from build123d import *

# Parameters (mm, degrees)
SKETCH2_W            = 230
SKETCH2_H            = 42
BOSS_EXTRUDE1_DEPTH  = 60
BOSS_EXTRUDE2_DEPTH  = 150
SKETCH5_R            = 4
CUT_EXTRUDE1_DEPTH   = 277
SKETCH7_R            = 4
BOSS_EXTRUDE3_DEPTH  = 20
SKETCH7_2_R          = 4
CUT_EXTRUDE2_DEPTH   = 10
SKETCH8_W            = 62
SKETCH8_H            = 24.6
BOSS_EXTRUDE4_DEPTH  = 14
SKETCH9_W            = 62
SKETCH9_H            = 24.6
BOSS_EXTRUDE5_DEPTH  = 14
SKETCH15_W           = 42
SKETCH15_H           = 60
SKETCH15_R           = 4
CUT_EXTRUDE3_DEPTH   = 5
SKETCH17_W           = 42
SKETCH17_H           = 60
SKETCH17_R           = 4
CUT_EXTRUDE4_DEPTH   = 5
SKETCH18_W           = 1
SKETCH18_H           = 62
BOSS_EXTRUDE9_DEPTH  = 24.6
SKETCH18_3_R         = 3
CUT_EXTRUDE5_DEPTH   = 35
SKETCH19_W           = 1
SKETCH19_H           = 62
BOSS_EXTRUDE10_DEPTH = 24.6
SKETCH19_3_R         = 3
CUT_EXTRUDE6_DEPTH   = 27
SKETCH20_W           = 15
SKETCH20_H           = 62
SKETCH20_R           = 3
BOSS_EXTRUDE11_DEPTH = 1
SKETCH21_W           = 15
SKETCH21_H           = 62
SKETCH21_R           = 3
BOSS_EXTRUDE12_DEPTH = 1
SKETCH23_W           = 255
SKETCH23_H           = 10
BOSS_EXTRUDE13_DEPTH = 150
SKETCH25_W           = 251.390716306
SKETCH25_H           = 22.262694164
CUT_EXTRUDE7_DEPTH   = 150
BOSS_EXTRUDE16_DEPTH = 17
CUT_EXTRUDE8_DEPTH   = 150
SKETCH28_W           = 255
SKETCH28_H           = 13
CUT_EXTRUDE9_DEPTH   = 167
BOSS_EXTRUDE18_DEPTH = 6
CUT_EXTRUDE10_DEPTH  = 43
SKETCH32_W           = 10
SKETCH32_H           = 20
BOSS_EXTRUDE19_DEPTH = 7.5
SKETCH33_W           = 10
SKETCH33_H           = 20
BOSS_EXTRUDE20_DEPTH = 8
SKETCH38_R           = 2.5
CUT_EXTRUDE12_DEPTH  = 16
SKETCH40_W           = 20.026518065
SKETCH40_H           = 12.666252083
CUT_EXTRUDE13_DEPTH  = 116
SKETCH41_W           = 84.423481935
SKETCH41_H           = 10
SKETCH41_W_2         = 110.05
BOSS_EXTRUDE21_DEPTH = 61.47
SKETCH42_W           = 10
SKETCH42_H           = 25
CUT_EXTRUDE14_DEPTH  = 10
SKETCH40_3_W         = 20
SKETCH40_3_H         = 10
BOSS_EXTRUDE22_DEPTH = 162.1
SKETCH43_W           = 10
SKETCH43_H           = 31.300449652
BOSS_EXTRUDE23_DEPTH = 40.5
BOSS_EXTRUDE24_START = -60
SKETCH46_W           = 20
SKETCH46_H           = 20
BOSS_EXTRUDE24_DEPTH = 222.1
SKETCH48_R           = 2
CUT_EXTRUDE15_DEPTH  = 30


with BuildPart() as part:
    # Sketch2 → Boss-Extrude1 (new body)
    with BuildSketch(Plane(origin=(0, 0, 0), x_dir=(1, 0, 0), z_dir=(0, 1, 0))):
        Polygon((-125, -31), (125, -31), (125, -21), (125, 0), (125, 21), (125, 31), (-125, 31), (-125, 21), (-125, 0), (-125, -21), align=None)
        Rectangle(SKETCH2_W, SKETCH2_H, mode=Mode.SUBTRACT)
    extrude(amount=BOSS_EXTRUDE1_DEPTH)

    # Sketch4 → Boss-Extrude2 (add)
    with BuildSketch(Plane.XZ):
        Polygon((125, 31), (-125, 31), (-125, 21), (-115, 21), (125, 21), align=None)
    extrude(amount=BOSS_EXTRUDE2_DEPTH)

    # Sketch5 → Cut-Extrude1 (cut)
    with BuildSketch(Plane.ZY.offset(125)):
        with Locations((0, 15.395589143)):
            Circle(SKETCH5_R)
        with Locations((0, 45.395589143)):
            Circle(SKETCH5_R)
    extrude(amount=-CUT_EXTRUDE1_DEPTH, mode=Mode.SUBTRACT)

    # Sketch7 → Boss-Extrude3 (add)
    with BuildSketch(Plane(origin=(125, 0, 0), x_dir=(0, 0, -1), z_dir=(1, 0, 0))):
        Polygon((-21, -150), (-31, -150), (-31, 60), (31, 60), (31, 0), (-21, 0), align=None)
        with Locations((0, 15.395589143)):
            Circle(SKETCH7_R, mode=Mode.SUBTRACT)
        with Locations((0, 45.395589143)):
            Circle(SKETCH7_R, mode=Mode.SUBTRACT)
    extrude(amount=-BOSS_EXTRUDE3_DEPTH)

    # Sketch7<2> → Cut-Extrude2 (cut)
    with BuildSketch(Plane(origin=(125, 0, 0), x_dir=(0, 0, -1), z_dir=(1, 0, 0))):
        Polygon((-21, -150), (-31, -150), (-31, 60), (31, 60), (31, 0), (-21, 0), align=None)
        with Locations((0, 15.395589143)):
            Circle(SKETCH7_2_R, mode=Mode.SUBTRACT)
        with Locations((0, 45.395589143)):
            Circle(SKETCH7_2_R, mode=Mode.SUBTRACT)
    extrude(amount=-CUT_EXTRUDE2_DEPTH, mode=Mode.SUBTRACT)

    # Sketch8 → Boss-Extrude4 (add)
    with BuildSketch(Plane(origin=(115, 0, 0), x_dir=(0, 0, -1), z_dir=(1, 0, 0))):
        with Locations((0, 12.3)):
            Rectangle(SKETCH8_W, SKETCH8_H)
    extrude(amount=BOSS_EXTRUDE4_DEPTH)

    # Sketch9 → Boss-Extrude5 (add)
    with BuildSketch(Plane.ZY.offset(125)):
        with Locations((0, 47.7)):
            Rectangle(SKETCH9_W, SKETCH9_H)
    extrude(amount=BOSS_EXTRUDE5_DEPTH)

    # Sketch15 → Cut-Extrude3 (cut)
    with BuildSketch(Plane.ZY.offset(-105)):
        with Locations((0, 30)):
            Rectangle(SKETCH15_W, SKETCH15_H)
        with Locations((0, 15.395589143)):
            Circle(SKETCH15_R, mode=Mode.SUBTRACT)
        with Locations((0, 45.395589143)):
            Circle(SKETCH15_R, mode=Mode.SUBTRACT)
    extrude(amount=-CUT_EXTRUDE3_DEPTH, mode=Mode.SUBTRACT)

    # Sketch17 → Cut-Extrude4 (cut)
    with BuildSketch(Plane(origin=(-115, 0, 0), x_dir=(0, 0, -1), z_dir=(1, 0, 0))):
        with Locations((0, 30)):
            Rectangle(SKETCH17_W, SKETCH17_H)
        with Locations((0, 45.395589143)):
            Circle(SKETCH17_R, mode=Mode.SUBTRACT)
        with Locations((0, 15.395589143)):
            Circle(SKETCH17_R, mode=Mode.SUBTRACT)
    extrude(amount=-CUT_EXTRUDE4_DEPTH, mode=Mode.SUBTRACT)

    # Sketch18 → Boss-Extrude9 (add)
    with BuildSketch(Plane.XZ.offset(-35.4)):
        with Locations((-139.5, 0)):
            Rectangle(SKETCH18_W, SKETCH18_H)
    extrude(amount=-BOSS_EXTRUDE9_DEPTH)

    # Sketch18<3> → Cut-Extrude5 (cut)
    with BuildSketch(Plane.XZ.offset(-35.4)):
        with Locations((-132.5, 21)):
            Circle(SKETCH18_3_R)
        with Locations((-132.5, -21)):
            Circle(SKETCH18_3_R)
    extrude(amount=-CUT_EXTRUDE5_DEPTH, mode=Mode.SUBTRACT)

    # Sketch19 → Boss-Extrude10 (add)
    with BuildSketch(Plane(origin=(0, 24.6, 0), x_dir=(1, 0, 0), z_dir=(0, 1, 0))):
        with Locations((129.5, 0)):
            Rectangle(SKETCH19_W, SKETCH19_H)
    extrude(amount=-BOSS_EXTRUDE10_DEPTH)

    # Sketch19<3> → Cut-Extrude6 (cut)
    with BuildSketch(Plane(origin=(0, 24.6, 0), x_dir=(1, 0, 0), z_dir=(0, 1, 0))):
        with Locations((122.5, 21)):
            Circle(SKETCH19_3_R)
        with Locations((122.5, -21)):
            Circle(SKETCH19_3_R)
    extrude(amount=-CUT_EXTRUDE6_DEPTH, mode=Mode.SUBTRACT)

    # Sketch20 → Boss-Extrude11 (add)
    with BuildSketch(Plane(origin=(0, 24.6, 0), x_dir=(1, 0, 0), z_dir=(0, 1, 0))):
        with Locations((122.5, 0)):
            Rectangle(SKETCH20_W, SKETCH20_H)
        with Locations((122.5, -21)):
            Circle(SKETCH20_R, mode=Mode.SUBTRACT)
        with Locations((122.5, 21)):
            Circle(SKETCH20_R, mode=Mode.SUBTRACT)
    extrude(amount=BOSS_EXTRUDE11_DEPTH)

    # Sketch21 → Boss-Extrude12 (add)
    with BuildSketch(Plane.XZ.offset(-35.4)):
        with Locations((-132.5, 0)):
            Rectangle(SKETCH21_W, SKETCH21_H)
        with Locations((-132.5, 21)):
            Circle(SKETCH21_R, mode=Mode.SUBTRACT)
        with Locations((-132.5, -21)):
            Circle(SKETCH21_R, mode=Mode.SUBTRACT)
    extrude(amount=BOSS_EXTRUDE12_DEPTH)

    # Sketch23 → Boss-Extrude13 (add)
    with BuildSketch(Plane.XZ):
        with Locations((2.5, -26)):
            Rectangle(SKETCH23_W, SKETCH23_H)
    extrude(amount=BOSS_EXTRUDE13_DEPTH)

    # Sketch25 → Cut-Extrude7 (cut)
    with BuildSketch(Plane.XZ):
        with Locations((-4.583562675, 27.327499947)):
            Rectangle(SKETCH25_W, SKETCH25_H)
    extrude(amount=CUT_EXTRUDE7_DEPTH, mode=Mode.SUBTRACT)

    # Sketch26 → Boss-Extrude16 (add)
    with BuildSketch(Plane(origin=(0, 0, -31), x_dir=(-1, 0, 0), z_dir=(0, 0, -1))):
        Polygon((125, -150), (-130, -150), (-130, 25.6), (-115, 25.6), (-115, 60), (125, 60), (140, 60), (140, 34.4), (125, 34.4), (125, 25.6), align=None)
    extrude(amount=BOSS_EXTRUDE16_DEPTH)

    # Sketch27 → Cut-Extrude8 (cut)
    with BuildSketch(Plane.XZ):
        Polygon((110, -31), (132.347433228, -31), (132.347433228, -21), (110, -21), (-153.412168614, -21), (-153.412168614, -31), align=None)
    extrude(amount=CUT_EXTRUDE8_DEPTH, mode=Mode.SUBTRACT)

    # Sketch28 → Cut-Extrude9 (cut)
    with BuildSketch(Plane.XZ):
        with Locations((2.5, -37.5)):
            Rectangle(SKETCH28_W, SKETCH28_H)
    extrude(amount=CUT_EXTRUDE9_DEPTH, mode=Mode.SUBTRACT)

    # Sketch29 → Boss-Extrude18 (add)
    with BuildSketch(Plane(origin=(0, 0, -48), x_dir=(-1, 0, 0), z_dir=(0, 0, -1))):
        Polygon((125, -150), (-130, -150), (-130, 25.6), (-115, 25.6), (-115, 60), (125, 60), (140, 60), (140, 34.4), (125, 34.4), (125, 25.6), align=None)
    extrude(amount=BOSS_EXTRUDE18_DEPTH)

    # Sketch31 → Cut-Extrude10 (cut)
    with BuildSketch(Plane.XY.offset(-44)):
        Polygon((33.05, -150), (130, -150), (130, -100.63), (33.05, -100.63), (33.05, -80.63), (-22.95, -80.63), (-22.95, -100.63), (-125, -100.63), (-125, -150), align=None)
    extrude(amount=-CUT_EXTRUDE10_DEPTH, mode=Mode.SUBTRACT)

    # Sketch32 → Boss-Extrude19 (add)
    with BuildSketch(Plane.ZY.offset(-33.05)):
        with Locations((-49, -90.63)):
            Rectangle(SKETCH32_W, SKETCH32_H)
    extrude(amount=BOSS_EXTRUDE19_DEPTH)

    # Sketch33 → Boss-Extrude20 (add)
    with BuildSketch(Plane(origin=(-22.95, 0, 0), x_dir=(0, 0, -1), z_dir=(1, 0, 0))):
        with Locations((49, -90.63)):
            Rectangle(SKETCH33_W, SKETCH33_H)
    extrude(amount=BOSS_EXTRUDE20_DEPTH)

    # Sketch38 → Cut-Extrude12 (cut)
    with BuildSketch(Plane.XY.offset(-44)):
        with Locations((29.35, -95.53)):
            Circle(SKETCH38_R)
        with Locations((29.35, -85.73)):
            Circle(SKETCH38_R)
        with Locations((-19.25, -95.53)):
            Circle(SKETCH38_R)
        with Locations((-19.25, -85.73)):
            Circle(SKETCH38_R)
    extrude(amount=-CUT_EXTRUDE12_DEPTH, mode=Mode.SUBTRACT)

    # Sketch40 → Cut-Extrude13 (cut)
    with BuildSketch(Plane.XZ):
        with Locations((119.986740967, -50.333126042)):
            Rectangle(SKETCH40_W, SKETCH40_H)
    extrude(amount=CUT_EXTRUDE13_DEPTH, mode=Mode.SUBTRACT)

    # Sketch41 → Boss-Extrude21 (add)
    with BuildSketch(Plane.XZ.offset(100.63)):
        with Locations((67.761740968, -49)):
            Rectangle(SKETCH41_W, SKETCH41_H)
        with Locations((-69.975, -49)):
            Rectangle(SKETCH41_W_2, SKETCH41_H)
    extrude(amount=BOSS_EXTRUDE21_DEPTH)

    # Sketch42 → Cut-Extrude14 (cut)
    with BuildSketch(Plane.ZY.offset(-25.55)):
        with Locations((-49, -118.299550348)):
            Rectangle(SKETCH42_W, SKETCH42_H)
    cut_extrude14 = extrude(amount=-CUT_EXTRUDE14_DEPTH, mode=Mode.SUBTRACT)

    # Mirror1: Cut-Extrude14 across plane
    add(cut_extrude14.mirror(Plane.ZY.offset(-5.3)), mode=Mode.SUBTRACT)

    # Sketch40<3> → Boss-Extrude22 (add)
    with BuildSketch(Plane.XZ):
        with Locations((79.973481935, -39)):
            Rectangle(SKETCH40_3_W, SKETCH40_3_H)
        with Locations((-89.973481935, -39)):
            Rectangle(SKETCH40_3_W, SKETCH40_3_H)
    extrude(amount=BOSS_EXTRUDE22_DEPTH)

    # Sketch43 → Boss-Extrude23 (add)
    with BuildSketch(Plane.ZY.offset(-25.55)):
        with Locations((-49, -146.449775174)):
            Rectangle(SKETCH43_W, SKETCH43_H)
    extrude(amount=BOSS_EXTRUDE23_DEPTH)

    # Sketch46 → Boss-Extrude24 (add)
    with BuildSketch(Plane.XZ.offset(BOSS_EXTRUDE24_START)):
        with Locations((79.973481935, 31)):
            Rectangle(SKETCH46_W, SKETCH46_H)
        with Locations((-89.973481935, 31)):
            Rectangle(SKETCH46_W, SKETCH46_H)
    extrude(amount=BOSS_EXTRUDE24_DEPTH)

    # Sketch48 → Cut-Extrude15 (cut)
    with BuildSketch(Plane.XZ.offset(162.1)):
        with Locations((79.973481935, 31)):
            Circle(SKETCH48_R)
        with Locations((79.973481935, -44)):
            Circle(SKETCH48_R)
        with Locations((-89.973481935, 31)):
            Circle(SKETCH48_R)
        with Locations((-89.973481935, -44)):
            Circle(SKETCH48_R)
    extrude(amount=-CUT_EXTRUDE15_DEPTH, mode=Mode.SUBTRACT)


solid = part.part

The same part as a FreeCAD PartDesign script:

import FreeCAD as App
import Part
import Sketcher


def add_polygon(sketch, points):
    """Adds a closed chain of lines whose ends are joined by coincident constraints."""
    first, n = sketch.GeometryCount, len(points)
    for a, b in zip(points, points[1:] + points[:1]):
        sketch.addGeometry(Part.LineSegment(App.Vector(*a, 0), App.Vector(*b, 0)), False)
    for i in range(n):
        sketch.addConstraint(Sketcher.Constraint("Coincident", first + i, 2, first + (i + 1) % n, 1))

doc = App.newDocument("Part")
body = doc.addObject("PartDesign::Body", "Body")

# Sketch on XZ plane
sketch1 = body.newObject("Sketcher::SketchObject", "Sketch")
sketch1.AttachmentSupport = (doc.getObject("XZ_Plane"), [""])
sketch1.MapMode = "FlatFace"
add_polygon(sketch1, [(-125, 31), (125, 31), (125, -31), (-125, -31)])  # lines 0-3
add_polygon(sketch1, [(115, 21), (-115, 21), (-115, -21), (115, -21)])  # lines 4-7
sketch1.addConstraint([
    Sketcher.Constraint("Horizontal", 0),
    Sketcher.Constraint("Vertical", 1),
    Sketcher.Constraint("Horizontal", 2),
    Sketcher.Constraint("Vertical", 3),
    Sketcher.Constraint("Horizontal", 4),
    Sketcher.Constraint("Vertical", 5),
    Sketcher.Constraint("Horizontal", 6),
    Sketcher.Constraint("Vertical", 7),
    Sketcher.Constraint("Symmetric", 0, 2, 2, 2, -1, 1),
    Sketcher.Constraint("Symmetric", 4, 2, 6, 2, -1, 1),
    Sketcher.Constraint("DistanceX", 0, 1, 0, 2, 250.0),
    Sketcher.Constraint("DistanceX", 4, 2, 4, 1, 230.0),
    Sketcher.Constraint("DistanceY", 1, 2, 1, 1, 62.0),
    Sketcher.Constraint("DistanceY", 5, 2, 5, 1, 42.0),
])
pad1 = body.newObject("PartDesign::Pad", "Pad")
pad1.Profile = sketch1
pad1.Length = 60
pad1.Reversed = True

# Sketch on XZ plane
sketch2 = body.newObject("Sketcher::SketchObject", "Sketch001")
sketch2.AttachmentSupport = (doc.getObject("XZ_Plane"), [""])
sketch2.MapMode = "FlatFace"
add_polygon(sketch2, [(125, 31), (-125, 31), (-125, 21), (125, 21)])  # lines 0-3
sketch2.addConstraint([
    Sketcher.Constraint("Horizontal", 0),
    Sketcher.Constraint("Vertical", 1),
    Sketcher.Constraint("Horizontal", 2),
    Sketcher.Constraint("Vertical", 3),
    Sketcher.Constraint("DistanceX", 0, 2, 0, 1, 250.0),
    Sketcher.Constraint("DistanceY", 1, 2, 1, 1, 10.0),
    Sketcher.Constraint("DistanceX", 0, 2, -1, 1, 125.0),
    Sketcher.Constraint("DistanceY", -1, 1, 0, 2, 31.0),
])
pad2 = body.newObject("PartDesign::Pad", "Pad001")
pad2.Profile = sketch2
pad2.Length = 150

# Sketch on YZ plane
sketch3 = body.newObject("Sketcher::SketchObject", "Sketch002")
sketch3.AttachmentSupport = (doc.getObject("YZ_Plane"), [""])
sketch3.MapMode = "FlatFace"
sketch3.AttachmentOffset = App.Placement(App.Vector(0, 0, -125), App.Rotation())
sketch3.addGeometry([
    Part.Circle(App.Vector(15.4, 0, 0), App.Vector(0, 0, 1), 4),
    Part.Circle(App.Vector(45.4, 0, 0), App.Vector(0, 0, 1), 4),
], False)
sketch3.addConstraint([
    Sketcher.Constraint("Equal", 0, 1),
    Sketcher.Constraint("PointOnObject", 0, 3, -1),
    Sketcher.Constraint("PointOnObject", 1, 3, -1),
    Sketcher.Constraint("Diameter", 0, 8.0),
    Sketcher.Constraint("DistanceX", 0, 3, 1, 3, 30.0),
    Sketcher.Constraint("DistanceX", -1, 1, 0, 3, 15.395589),
])
pocket1 = body.newObject("PartDesign::Pocket", "Pocket")
pocket1.Profile = sketch3
pocket1.Length = 277
pocket1.Reversed = True

# Sketch on YZ plane
sketch4 = body.newObject("Sketcher::SketchObject", "Sketch003")
sketch4.AttachmentSupport = (doc.getObject("YZ_Plane"), [""])
sketch4.MapMode = "FlatFace"
sketch4.AttachmentOffset = App.Placement(App.Vector(0, 0, 125), App.Rotation())
add_polygon(sketch4, [(-150, 31), (-150, 21), (0, 21), (0, -31), (60, -31), (60, 31)])  # lines 0-5
sketch4.addGeometry(Part.Circle(App.Vector(15.4, 0, 0), App.Vector(0, 0, 1), 4), False)  # 6
sketch4.addGeometry(Part.Circle(App.Vector(45.4, 0, 0), App.Vector(0, 0, 1), 4), False)  # 7
sketch4.addConstraint([
    Sketcher.Constraint("Vertical", 0),
    Sketcher.Constraint("Horizontal", 1),
    Sketcher.Constraint("Vertical", 2),
    Sketcher.Constraint("Horizontal", 3),
    Sketcher.Constraint("Vertical", 4),
    Sketcher.Constraint("Horizontal", 5),
    Sketcher.Constraint("Equal", 6, 7),
    Sketcher.Constraint("PointOnObject", 6, 3, -1),
    Sketcher.Constraint("PointOnObject", 7, 3, -1),
    Sketcher.Constraint("PointOnObject", 1, 2, -2),
    Sketcher.Constraint("Diameter", 6, 8.0),
    Sketcher.Constraint("DistanceX", 1, 1, 1, 2, 150.0),
    Sketcher.Constraint("DistanceX", 3, 1, 3, 2, 60.0),
    Sketcher.Constraint("DistanceY", 0, 2, 0, 1, 10.0),
    Sketcher.Constraint("DistanceY", 2, 2, 2, 1, 52.0),
    Sketcher.Constraint("DistanceY", -1, 1, 0, 2, 21.0),
    Sketcher.Constraint("DistanceX", 6, 3, 7, 3, 30.0),
    Sketcher.Constraint("DistanceX", -1, 1, 6, 3, 15.395589),
])
pad3 = body.newObject("PartDesign::Pad", "Pad002")
pad3.Profile = sketch4
pad3.Length = 20
pad3.Reversed = True

# Sketch on YZ plane
sketch5 = body.newObject("Sketcher::SketchObject", "Sketch004")
sketch5.AttachmentSupport = (doc.getObject("YZ_Plane"), [""])
sketch5.MapMode = "FlatFace"
sketch5.AttachmentOffset = App.Placement(App.Vector(0, 0, 125), App.Rotation())
add_polygon(sketch5, [(-150, 31), (-150, 21), (0, 21), (0, -31), (60, -31), (60, 31)])  # lines 0-5
sketch5.addGeometry(Part.Circle(App.Vector(15.4, 0, 0), App.Vector(0, 0, 1), 4), False)  # 6
sketch5.addGeometry(Part.Circle(App.Vector(45.4, 0, 0), App.Vector(0, 0, 1), 4), False)  # 7
sketch5.addConstraint([
    Sketcher.Constraint("Vertical", 0),
    Sketcher.Constraint("Horizontal", 1),
    Sketcher.Constraint("Vertical", 2),
    Sketcher.Constraint("Horizontal", 3),
    Sketcher.Constraint("Vertical", 4),
    Sketcher.Constraint("Horizontal", 5),
    Sketcher.Constraint("Equal", 6, 7),
    Sketcher.Constraint("PointOnObject", 6, 3, -1),
    Sketcher.Constraint("PointOnObject", 7, 3, -1),
    Sketcher.Constraint("PointOnObject", 1, 2, -2),
    Sketcher.Constraint("Diameter", 6, 8.0),
    Sketcher.Constraint("DistanceX", 1, 1, 1, 2, 150.0),
    Sketcher.Constraint("DistanceX", 3, 1, 3, 2, 60.0),
    Sketcher.Constraint("DistanceY", 0, 2, 0, 1, 10.0),
    Sketcher.Constraint("DistanceY", 2, 2, 2, 1, 52.0),
    Sketcher.Constraint("DistanceY", -1, 1, 0, 2, 21.0),
    Sketcher.Constraint("DistanceX", 6, 3, 7, 3, 30.0),
    Sketcher.Constraint("DistanceX", -1, 1, 6, 3, 15.395589),
])
pocket2 = body.newObject("PartDesign::Pocket", "Pocket001")
pocket2.Profile = sketch5
pocket2.Length = 10

# Sketch on YZ plane
sketch6 = body.newObject("Sketcher::SketchObject", "Sketch005")
sketch6.AttachmentSupport = (doc.getObject("YZ_Plane"), [""])
sketch6.MapMode = "FlatFace"
sketch6.AttachmentOffset = App.Placement(App.Vector(0, 0, 115), App.Rotation())
add_polygon(sketch6, [(25, 31), (0, 31), (0, -31), (25, -31)])  # lines 0-3
sketch6.addConstraint([
    Sketcher.Constraint("Horizontal", 0),
    Sketcher.Constraint("Vertical", 1),
    Sketcher.Constraint("Horizontal", 2),
    Sketcher.Constraint("Vertical", 3),
    Sketcher.Constraint("Symmetric", 0, 2, 1, 2, -1, 1),
    Sketcher.Constraint("DistanceY", 1, 2, 1, 1, 62.0),
    Sketcher.Constraint("DistanceX", 0, 2, 0, 1, 24.6),
])
pad4 = body.newObject("PartDesign::Pad", "Pad003")
pad4.Profile = sketch6
pad4.Length = 14

# Sketch on YZ plane
sketch7 = body.newObject("Sketcher::SketchObject", "Sketch006")
sketch7.AttachmentSupport = (doc.getObject("YZ_Plane"), [""])
sketch7.MapMode = "FlatFace"
sketch7.AttachmentOffset = App.Placement(App.Vector(0, 0, -125), App.Rotation())
add_polygon(sketch7, [(60, -31), (35, -31), (35, 31), (60, 31)])  # lines 0-3
sketch7.addConstraint([
    Sketcher.Constraint("Horizontal", 0),
    Sketcher.Constraint("Vertical", 1),
    Sketcher.Constraint("Horizontal", 2),
    Sketcher.Constraint("Vertical", 3),
    Sketcher.Constraint("DistanceY", 1, 1, 1, 2, 62.0),
    Sketcher.Constraint("DistanceX", 0, 2, 0, 1, 24.6),
    Sketcher.Constraint("DistanceY", 0, 2, -1, 1, 31.0),
    Sketcher.Constraint("DistanceX", -1, 1, 2, 2, 60.0),
])
pad5 = body.newObject("PartDesign::Pad", "Pad004")
pad5.Profile = sketch7
pad5.Length = 14
pad5.Reversed = True

# Sketch on YZ plane
sketch8 = body.newObject("Sketcher::SketchObject", "Sketch007")
sketch8.AttachmentSupport = (doc.getObject("YZ_Plane"), [""])
sketch8.MapMode = "FlatFace"
sketch8.AttachmentOffset = App.Placement(App.Vector(0, 0, 105), App.Rotation())
add_polygon(sketch8, [(60, -21), (0, -21), (0, 21), (60, 21)])  # lines 0-3
sketch8.addGeometry(Part.Circle(App.Vector(15.4, 0, 0), App.Vector(0, 0, 1), 4), False)  # 4
sketch8.addGeometry(Part.Circle(App.Vector(45.4, 0, 0), App.Vector(0, 0, 1), 4), False)  # 5
sketch8.addConstraint([
    Sketcher.Constraint("Horizontal", 0),
    Sketcher.Constraint("Vertical", 1),
    Sketcher.Constraint("Horizontal", 2),
    Sketcher.Constraint("Vertical", 3),
    Sketcher.Constraint("Equal", 4, 5),
    Sketcher.Constraint("Symmetric", 0, 2, 1, 2, -1, 1),
    Sketcher.Constraint("PointOnObject", 4, 3, -1),
    Sketcher.Constraint("PointOnObject", 5, 3, -1),
    Sketcher.Constraint("Diameter", 4, 8.0),
    Sketcher.Constraint("DistanceX", 0, 2, 0, 1, 60.0),
    Sketcher.Constraint("DistanceY", 1, 1, 1, 2, 42.0),
    Sketcher.Constraint("DistanceX", 4, 3, 5, 3, 30.0),
    Sketcher.Constraint("DistanceX", -1, 1, 4, 3, 15.395589),
])
pocket3 = body.newObject("PartDesign::Pocket", "Pocket002")
pocket3.Profile = sketch8
pocket3.Length = 5
pocket3.Reversed = True

# Sketch on YZ plane
sketch9 = body.newObject("Sketcher::SketchObject", "Sketch008")
sketch9.AttachmentSupport = (doc.getObject("YZ_Plane"), [""])
sketch9.MapMode = "FlatFace"
sketch9.AttachmentOffset = App.Placement(App.Vector(0, 0, -115), App.Rotation())
add_polygon(sketch9, [(60, 21), (0, 21), (0, -21), (60, -21)])  # lines 0-3
sketch9.addGeometry(Part.Circle(App.Vector(15.4, 0, 0), App.Vector(0, 0, 1), 4), False)  # 4
sketch9.addGeometry(Part.Circle(App.Vector(45.4, 0, 0), App.Vector(0, 0, 1), 4), False)  # 5
sketch9.addConstraint([
    Sketcher.Constraint("Horizontal", 0),
    Sketcher.Constraint("Vertical", 1),
    Sketcher.Constraint("Horizontal", 2),
    Sketcher.Constraint("Vertical", 3),
    Sketcher.Constraint("Equal", 4, 5),
    Sketcher.Constraint("Symmetric", 0, 2, 1, 2, -1, 1),
    Sketcher.Constraint("PointOnObject", 4, 3, -1),
    Sketcher.Constraint("PointOnObject", 5, 3, -1),
    Sketcher.Constraint("Diameter", 4, 8.0),
    Sketcher.Constraint("DistanceX", 0, 2, 0, 1, 60.0),
    Sketcher.Constraint("DistanceY", 1, 2, 1, 1, 42.0),
    Sketcher.Constraint("DistanceX", 4, 3, 5, 3, 30.0),
    Sketcher.Constraint("DistanceX", -1, 1, 4, 3, 15.395589),
])
pocket4 = body.newObject("PartDesign::Pocket", "Pocket003")
pocket4.Profile = sketch9
pocket4.Length = 5

# Sketch on XZ plane
sketch10 = body.newObject("Sketcher::SketchObject", "Sketch009")
sketch10.AttachmentSupport = (doc.getObject("XZ_Plane"), [""])
sketch10.MapMode = "FlatFace"
sketch10.AttachmentOffset = App.Placement(App.Vector(0, 0, -35.4), App.Rotation())
add_polygon(sketch10, [(-140, 31), (-140, -31), (-139, -31), (-139, 31)])  # lines 0-3
sketch10.addConstraint([
    Sketcher.Constraint("Vertical", 0),
    Sketcher.Constraint("Horizontal", 1),
    Sketcher.Constraint("Vertical", 2),
    Sketcher.Constraint("Horizontal", 3),
    Sketcher.Constraint("DistanceX", 1, 1, 1, 2, 1.0),
    Sketcher.Constraint("DistanceY", 0, 2, 0, 1, 62.0),
    Sketcher.Constraint("DistanceX", 0, 2, -1, 1, 140.0),
    Sketcher.Constraint("DistanceY", 0, 2, -1, 1, 31.0),
])
pad6 = body.newObject("PartDesign::Pad", "Pad005")
pad6.Profile = sketch10
pad6.Length = 24.6
pad6.Reversed = True

# Sketch on XZ plane
sketch11 = body.newObject("Sketcher::SketchObject", "Sketch010")
sketch11.AttachmentSupport = (doc.getObject("XZ_Plane"), [""])
sketch11.MapMode = "FlatFace"
sketch11.AttachmentOffset = App.Placement(App.Vector(0, 0, -35.4), App.Rotation())
sketch11.addGeometry([
    Part.Circle(App.Vector(-132.5, 21, 0), App.Vector(0, 0, 1), 3),
    Part.Circle(App.Vector(-132.5, -21, 0), App.Vector(0, 0, 1), 3),
], False)
sketch11.addConstraint([
    Sketcher.Constraint("Equal", 0, 1),
    Sketcher.Constraint("Symmetric", 0, 3, 1, 3, -1),
    Sketcher.Constraint("Diameter", 0, 6.0),
    Sketcher.Constraint("DistanceY", -1, 1, 0, 3, 21.0),
    Sketcher.Constraint("DistanceX", 0, 3, -1, 1, 132.5),
])
pocket5 = body.newObject("PartDesign::Pocket", "Pocket004")
pocket5.Profile = sketch11
pocket5.Length = 35

# Sketch on XZ plane
sketch12 = body.newObject("Sketcher::SketchObject", "Sketch011")
sketch12.AttachmentSupport = (doc.getObject("XZ_Plane"), [""])
sketch12.MapMode = "FlatFace"
sketch12.AttachmentOffset = App.Placement(App.Vector(0, 0, -24.6), App.Rotation())
add_polygon(sketch12, [(129, -31), (129, 31), (130, 31), (130, -31)])  # lines 0-3
sketch12.addConstraint([
    Sketcher.Constraint("Vertical", 0),
    Sketcher.Constraint("Horizontal", 1),
    Sketcher.Constraint("Vertical", 2),
    Sketcher.Constraint("Horizontal", 3),
    Sketcher.Constraint("DistanceX", 1, 1, 1, 2, 1.0),
    Sketcher.Constraint("DistanceY", 0, 1, 0, 2, 62.0),
    Sketcher.Constraint("DistanceX", -1, 1, 0, 2, 129.0),
    Sketcher.Constraint("DistanceY", -1, 1, 0, 2, 31.0),
])
pad7 = body.newObject("PartDesign::Pad", "Pad006")
pad7.Profile = sketch12
pad7.Length = 24.6

# Sketch on XZ plane
sketch13 = body.newObject("Sketcher::SketchObject", "Sketch012")
sketch13.AttachmentSupport = (doc.getObject("XZ_Plane"), [""])
sketch13.MapMode = "FlatFace"
sketch13.AttachmentOffset = App.Placement(App.Vector(0, 0, -24.6), App.Rotation())
sketch13.addGeometry([
    Part.Circle(App.Vector(122.5, -21, 0), App.Vector(0, 0, 1), 3),
    Part.Circle(App.Vector(122.5, 21, 0), App.Vector(0, 0, 1), 3),
], False)
sketch13.addConstraint([
    Sketcher.Constraint("Equal", 0, 1),
    Sketcher.Constraint("Symmetric", 0, 3, 1, 3, -1),
    Sketcher.Constraint("Diameter", 0, 6.0),
    Sketcher.Constraint("DistanceY", 0, 3, -1, 1, 21.0),
    Sketcher.Constraint("DistanceX", -1, 1, 0, 3, 122.5),
])
pocket6 = body.newObject("PartDesign::Pocket", "Pocket005")
pocket6.Profile = sketch13
pocket6.Length = 27
pocket6.Reversed = True

# Sketch on XZ plane
sketch14 = body.newObject("Sketcher::SketchObject", "Sketch013")
sketch14.AttachmentSupport = (doc.getObject("XZ_Plane"), [""])
sketch14.MapMode = "FlatFace"
sketch14.AttachmentOffset = App.Placement(App.Vector(0, 0, -24.6), App.Rotation())
add_polygon(sketch14, [(115, -31), (115, 31), (130, 31), (130, -31)])  # lines 0-3
sketch14.addGeometry(Part.Circle(App.Vector(122.5, 21, 0), App.Vector(0, 0, 1), 3), False)  # 4
sketch14.addGeometry(Part.Circle(App.Vector(122.5, -21, 0), App.Vector(0, 0, 1), 3), False)  # 5
sketch14.addConstraint([
    Sketcher.Constraint("Vertical", 0),
    Sketcher.Constraint("Horizontal", 1),
    Sketcher.Constraint("Vertical", 2),
    Sketcher.Constraint("Horizontal", 3),
    Sketcher.Constraint("Equal", 4, 5),
    Sketcher.Constraint("Symmetric", 4, 3, 5, 3, -1),
    Sketcher.Constraint("Diameter", 4, 6.0),
    Sketcher.Constraint("DistanceX", 1, 1, 1, 2, 15.0),
    Sketcher.Constraint("DistanceY", 0, 1, 0, 2, 62.0),
    Sketcher.Constraint("DistanceY", -1, 1, 4, 3, 21.0),
    Sketcher.Constraint("DistanceX", -1, 1, 0, 2, 115.0),
    Sketcher.Constraint("DistanceY", -1, 1, 0, 2, 31.0),
    Sketcher.Constraint("DistanceX", -1, 1, 4, 3, 122.5),
])
pad8 = body.newObject("PartDesign::Pad", "Pad007")
pad8.Profile = sketch14
pad8.Length = 1
pad8.Reversed = True

# Sketch on XZ plane
sketch15 = body.newObject("Sketcher::SketchObject", "Sketch014")
sketch15.AttachmentSupport = (doc.getObject("XZ_Plane"), [""])
sketch15.MapMode = "FlatFace"
sketch15.AttachmentOffset = App.Placement(App.Vector(0, 0, -35.4), App.Rotation())
add_polygon(sketch15, [(-140, 31), (-140, -31), (-125, -31), (-125, 31)])  # lines 0-3
sketch15.addGeometry(Part.Circle(App.Vector(-132.5, -21, 0), App.Vector(0, 0, 1), 3), False)  # 4
sketch15.addGeometry(Part.Circle(App.Vector(-132.5, 21, 0), App.Vector(0, 0, 1), 3), False)  # 5
sketch15.addConstraint([
    Sketcher.Constraint("Vertical", 0),
    Sketcher.Constraint("Horizontal", 1),
    Sketcher.Constraint("Vertical", 2),
    Sketcher.Constraint("Horizontal", 3),
    Sketcher.Constraint("Equal", 4, 5),
    Sketcher.Constraint("Symmetric", 4, 3, 5, 3, -1),
    Sketcher.Constraint("Diameter", 4, 6.0),
    Sketcher.Constraint("DistanceX", 1, 1, 1, 2, 15.0),
    Sketcher.Constraint("DistanceY", 0, 2, 0, 1, 62.0),
    Sketcher.Constraint("DistanceY", 4, 3, -1, 1, 21.0),
    Sketcher.Constraint("DistanceX", 0, 2, -1, 1, 140.0),
    Sketcher.Constraint("DistanceY", 0, 2, -1, 1, 31.0),
    Sketcher.Constraint("DistanceX", 4, 3, -1, 1, 132.5),
])
pad9 = body.newObject("PartDesign::Pad", "Pad008")
pad9.Profile = sketch15
pad9.Length = 1

# Sketch on XZ plane
sketch16 = body.newObject("Sketcher::SketchObject", "Sketch015")
sketch16.AttachmentSupport = (doc.getObject("XZ_Plane"), [""])
sketch16.MapMode = "FlatFace"
add_polygon(sketch16, [(-125, -21), (-125, -31), (130, -31), (130, -21)])  # lines 0-3
sketch16.addConstraint([
    Sketcher.Constraint("Vertical", 0),
    Sketcher.Constraint("Horizontal", 1),
    Sketcher.Constraint("Vertical", 2),
    Sketcher.Constraint("Horizontal", 3),
    Sketcher.Constraint("DistanceX", 1, 1, 1, 2, 255.0),
    Sketcher.Constraint("DistanceY", 0, 2, 0, 1, 10.0),
    Sketcher.Constraint("DistanceX", 0, 2, -1, 1, 125.0),
    Sketcher.Constraint("DistanceY", 0, 2, -1, 1, 31.0),
])
pad10 = body.newObject("PartDesign::Pad", "Pad009")
pad10.Profile = sketch16
pad10.Length = 150

# Sketch on XZ plane
sketch17 = body.newObject("Sketcher::SketchObject", "Sketch016")
sketch17.AttachmentSupport = (doc.getObject("XZ_Plane"), [""])
sketch17.MapMode = "FlatFace"
add_polygon(sketch17, [(-130, 38), (-130, 16), (121, 16), (121, 38)])  # lines 0-3
sketch17.addConstraint([
    Sketcher.Constraint("Vertical", 0),
    Sketcher.Constraint("Horizontal", 1),
    Sketcher.Constraint("Vertical", 2),
    Sketcher.Constraint("Horizontal", 3),
    Sketcher.Constraint("DistanceX", 1, 1, 1, 2, 251.390716),
    Sketcher.Constraint("DistanceY", 0, 2, 0, 1, 22.262694),
    Sketcher.Constraint("DistanceX", 0, 2, -1, 1, 130.278921),
    Sketcher.Constraint("DistanceY", -1, 1, 0, 2, 16.196153),
])
pocket7 = body.newObject("PartDesign::Pocket", "Pocket006")
pocket7.Profile = sketch17
pocket7.Length = 150
pocket7.Reversed = True

# Sketch on XY plane
sketch18 = body.newObject("Sketcher::SketchObject", "Sketch017")
sketch18.AttachmentSupport = (doc.getObject("XY_Plane"), [""])
sketch18.MapMode = "FlatFace"
sketch18.AttachmentOffset = App.Placement(App.Vector(0, 0, -31), App.Rotation())
add_polygon(sketch18, [(130, -150), (-125, -150), (-125, 34), (-140, 34), (-140, 60), (115, 60), (115, 26), (130, 26)])  # lines 0-7
sketch18.addConstraint([
    Sketcher.Constraint("Horizontal", 0),
    Sketcher.Constraint("Vertical", 1),
    Sketcher.Constraint("Horizontal", 2),
    Sketcher.Constraint("Vertical", 3),
    Sketcher.Constraint("Horizontal", 4),
    Sketcher.Constraint("Vertical", 5),
    Sketcher.Constraint("Horizontal", 6),
    Sketcher.Constraint("Vertical", 7),
    Sketcher.Constraint("Equal", 0, 4),
    Sketcher.Constraint("DistanceX", 0, 2, 0, 1, 255.0),
    Sketcher.Constraint("DistanceX", 2, 2, 2, 1, 15.0),
    Sketcher.Constraint("DistanceY", 1, 1, 1, 2, 184.4),
    Sketcher.Constraint("DistanceY", 3, 1, 3, 2, 25.6),
    Sketcher.Constraint("DistanceY", 5, 2, 5, 1, 34.4),
    Sketcher.Constraint("DistanceX", 0, 2, -1, 1, 125.0),
    Sketcher.Constraint("DistanceY", 0, 2, -1, 1, 150.0),
])
pad11 = body.newObject("PartDesign::Pad", "Pad010")
pad11.Profile = sketch18
pad11.Length = 17
pad11.Reversed = True

# Sketch on XZ plane
sketch19 = body.newObject("Sketcher::SketchObject", "Sketch018")
sketch19.AttachmentSupport = (doc.getObject("XZ_Plane"), [""])
sketch19.MapMode = "FlatFace"
add_polygon(sketch19, [(132, -31), (132, -21), (-153, -21), (-153, -31)])  # lines 0-3
sketch19.addConstraint([
    Sketcher.Constraint("Vertical", 0),
    Sketcher.Constraint("Horizontal", 1),
    Sketcher.Constraint("Vertical", 2),
    Sketcher.Constraint("Horizontal", 3),
    Sketcher.Constraint("DistanceY", 0, 1, 0, 2, 10.0),
    Sketcher.Constraint("DistanceY", 0, 2, -1, 1, 21.0),
    Sketcher.Constraint("DistanceX", 1, 2, 1, 1, 285.759602),
    Sketcher.Constraint("DistanceX", 1, 2, -1, 1, 153.412169),
])
pocket8 = body.newObject("PartDesign::Pocket", "Pocket007")
pocket8.Profile = sketch19
pocket8.Length = 150
pocket8.Reversed = True

# Sketch on XZ plane
sketch20 = body.newObject("Sketcher::SketchObject", "Sketch019")
sketch20.AttachmentSupport = (doc.getObject("XZ_Plane"), [""])
sketch20.MapMode = "FlatFace"
add_polygon(sketch20, [(-125, -31), (-125, -44), (130, -44), (130, -31)])  # lines 0-3
sketch20.addConstraint([
    Sketcher.Constraint("Vertical", 0),
    Sketcher.Constraint("Horizontal", 1),
    Sketcher.Constraint("Vertical", 2),
    Sketcher.Constraint("Horizontal", 3),
    Sketcher.Constraint("DistanceX", 1, 1, 1, 2, 255.0),
    Sketcher.Constraint("DistanceY", 0, 2, 0, 1, 13.0),
    Sketcher.Constraint("DistanceX", 0, 2, -1, 1, 125.0),
    Sketcher.Constraint("DistanceY", 0, 2, -1, 1, 44.0),
])
pocket9 = body.newObject("PartDesign::Pocket", "Pocket008")
pocket9.Profile = sketch20
pocket9.Length = 167
pocket9.Reversed = True

# Sketch on XY plane
sketch21 = body.newObject("Sketcher::SketchObject", "Sketch020")
sketch21.AttachmentSupport = (doc.getObject("XY_Plane"), [""])
sketch21.MapMode = "FlatFace"
sketch21.AttachmentOffset = App.Placement(App.Vector(0, 0, -48), App.Rotation())
add_polygon(sketch21, [(130, -150), (-125, -150), (-125, 34), (-140, 34), (-140, 60), (115, 60), (115, 26), (130, 26)])  # lines 0-7
sketch21.addConstraint([
    Sketcher.Constraint("Horizontal", 0),
    Sketcher.Constraint("Vertical", 1),
    Sketcher.Constraint("Horizontal", 2),
    Sketcher.Constraint("Vertical", 3),
    Sketcher.Constraint("Horizontal", 4),
    Sketcher.Constraint("Vertical", 5),
    Sketcher.Constraint("Horizontal", 6),
    Sketcher.Constraint("Vertical", 7),
    Sketcher.Constraint("Equal", 0, 4),
    Sketcher.Constraint("DistanceX", 0, 2, 0, 1, 255.0),
    Sketcher.Constraint("DistanceX", 2, 2, 2, 1, 15.0),
    Sketcher.Constraint("DistanceY", 1, 1, 1, 2, 184.4),
    Sketcher.Constraint("DistanceY", 3, 1, 3, 2, 25.6),
    Sketcher.Constraint("DistanceY", 5, 2, 5, 1, 34.4),
    Sketcher.Constraint("DistanceX", 0, 2, -1, 1, 125.0),
    Sketcher.Constraint("DistanceY", 0, 2, -1, 1, 150.0),
])
pad12 = body.newObject("PartDesign::Pad", "Pad011")
pad12.Profile = sketch21
pad12.Length = 6
pad12.Reversed = True

# Sketch on XY plane
sketch22 = body.newObject("Sketcher::SketchObject", "Sketch021")
sketch22.AttachmentSupport = (doc.getObject("XY_Plane"), [""])
sketch22.MapMode = "FlatFace"
sketch22.AttachmentOffset = App.Placement(App.Vector(0, 0, -44), App.Rotation())
add_polygon(sketch22, [(130, -150), (130, -101), (33, -101), (33, -81), (-23, -81), (-23, -101), (-125, -101), (-125, -150)])  # lines 0-7
sketch22.addConstraint([
    Sketcher.Constraint("Vertical", 0),
    Sketcher.Constraint("Horizontal", 1),
    Sketcher.Constraint("Vertical", 2),
    Sketcher.Constraint("Horizontal", 3),
    Sketcher.Constraint("Vertical", 4),
    Sketcher.Constraint("Horizontal", 5),
    Sketcher.Constraint("Vertical", 6),
    Sketcher.Constraint("Horizontal", 7),
    Sketcher.Constraint("Horizontal", 1, 2, 4, 2),
    Sketcher.Constraint("DistanceX", 3, 2, 3, 1, 56.0),
    Sketcher.Constraint("DistanceX", 7, 1, 7, 2, 255.0),
    Sketcher.Constraint("DistanceY", 2, 1, 2, 2, 20.0),
    Sketcher.Constraint("DistanceX", -1, 1, 0, 2, 130.0),
    Sketcher.Constraint("DistanceY", 6, 2, -1, 1, 150.0),
    Sketcher.Constraint("DistanceX", 1, 2, 1, 1, 96.95),
    Sketcher.Constraint("DistanceY", 0, 1, 0, 2, 49.37),
])
pocket10 = body.newObject("PartDesign::Pocket", "Pocket009")
pocket10.Profile = sketch22
pocket10.Length = 43

# Sketch on YZ plane
sketch23 = body.newObject("Sketcher::SketchObject", "Sketch022")
sketch23.AttachmentSupport = (doc.getObject("YZ_Plane"), [""])
sketch23.MapMode = "FlatFace"
sketch23.AttachmentOffset = App.Placement(App.Vector(0, 0, 33.05), App.Rotation())
add_polygon(sketch23, [(-81, -54), (-101, -54), (-101, -44), (-81, -44)])  # lines 0-3
sketch23.addConstraint([
    Sketcher.Constraint("Horizontal", 0),
    Sketcher.Constraint("Vertical", 1),
    Sketcher.Constraint("Horizontal", 2),
    Sketcher.Constraint("Vertical", 3),
    Sketcher.Constraint("DistanceX", 0, 2, 0, 1, 20.0),
    Sketcher.Constraint("DistanceY", 1, 1, 1, 2, 10.0),
    Sketcher.Constraint("DistanceY", 0, 2, -1, 1, 54.0),
    Sketcher.Constraint("DistanceX", 0, 2, -1, 1, 100.63),
])
pad13 = body.newObject("PartDesign::Pad", "Pad012")
pad13.Profile = sketch23
pad13.Length = 7.5
pad13.Reversed = True

# Sketch on YZ plane
sketch24 = body.newObject("Sketcher::SketchObject", "Sketch023")
sketch24.AttachmentSupport = (doc.getObject("YZ_Plane"), [""])
sketch24.MapMode = "FlatFace"
sketch24.AttachmentOffset = App.Placement(App.Vector(0, 0, -22.95), App.Rotation())
add_polygon(sketch24, [(-81, -44), (-101, -44), (-101, -54), (-81, -54)])  # lines 0-3
sketch24.addConstraint([
    Sketcher.Constraint("Horizontal", 0),
    Sketcher.Constraint("Vertical", 1),
    Sketcher.Constraint("Horizontal", 2),
    Sketcher.Constraint("Vertical", 3),
    Sketcher.Constraint("DistanceX", 0, 2, 0, 1, 20.0),
    Sketcher.Constraint("DistanceY", 1, 2, 1, 1, 10.0),
    Sketcher.Constraint("DistanceY", 0, 2, -1, 1, 44.0),
    Sketcher.Constraint("DistanceX", 0, 2, -1, 1, 100.63),
])
pad14 = body.newObject("PartDesign::Pad", "Pad013")
pad14.Profile = sketch24
pad14.Length = 8

# Sketch on XY plane
sketch25 = body.newObject("Sketcher::SketchObject", "Sketch024")
sketch25.AttachmentSupport = (doc.getObject("XY_Plane"), [""])
sketch25.MapMode = "FlatFace"
sketch25.AttachmentOffset = App.Placement(App.Vector(0, 0, -44), App.Rotation())
sketch25.addGeometry([
    Part.Circle(App.Vector(29.4, -95.5, 0), App.Vector(0, 0, 1), 2.5),
    Part.Circle(App.Vector(29.4, -85.7, 0), App.Vector(0, 0, 1), 2.5),
    Part.Circle(App.Vector(-19.2, -95.5, 0), App.Vector(0, 0, 1), 2.5),
    Part.Circle(App.Vector(-19.2, -85.7, 0), App.Vector(0, 0, 1), 2.5),
], False)
sketch25.addConstraint([
    Sketcher.Constraint("Equal", 0, 1),
    Sketcher.Constraint("Equal", 1, 2),
    Sketcher.Constraint("Equal", 2, 3),
    Sketcher.Constraint("Horizontal", 0, 3, 2, 3),
    Sketcher.Constraint("Horizontal", 1, 3, 3, 3),
    Sketcher.Constraint("Vertical", 0, 3, 1, 3),
    Sketcher.Constraint("Vertical", 2, 3, 3, 3),
    Sketcher.Constraint("Diameter", 0, 5.0),
    Sketcher.Constraint("DistanceY", 0, 3, 1, 3, 9.8),
    Sketcher.Constraint("DistanceX", 2, 3, 0, 3, 48.6),
    Sketcher.Constraint("DistanceX", -1, 1, 0, 3, 29.35),
    Sketcher.Constraint("DistanceY", 0, 3, -1, 1, 95.53),
])
pocket11 = body.newObject("PartDesign::Pocket", "Pocket010")
pocket11.Profile = sketch25
pocket11.Length = 16

# Sketch on XZ plane
sketch26 = body.newObject("Sketcher::SketchObject", "Sketch025")
sketch26.AttachmentSupport = (doc.getObject("XZ_Plane"), [""])
sketch26.MapMode = "FlatFace"
add_polygon(sketch26, [(110, -44), (110, -57), (130, -57), (130, -44)])  # lines 0-3
sketch26.addConstraint([
    Sketcher.Constraint("Vertical", 0),
    Sketcher.Constraint("Horizontal", 1),
    Sketcher.Constraint("Vertical", 2),
    Sketcher.Constraint("Horizontal", 3),
    Sketcher.Constraint("DistanceX", -1, 1, 1, 2, 130.0),
    Sketcher.Constraint("DistanceY", 2, 2, -1, 1, 44.0),
    Sketcher.Constraint("DistanceX", 1, 1, 1, 2, 20.026518),
    Sketcher.Constraint("DistanceY", 0, 2, 0, 1, 12.666252),
])
pocket12 = body.newObject("PartDesign::Pocket", "Pocket011")
pocket12.Profile = sketch26
pocket12.Length = 116
pocket12.Reversed = True

# Sketch on XZ plane
sketch27 = body.newObject("Sketcher::SketchObject", "Sketch026")
sketch27.AttachmentSupport = (doc.getObject("XZ_Plane"), [""])
sketch27.MapMode = "FlatFace"
sketch27.AttachmentOffset = App.Placement(App.Vector(0, 0, 100.63), App.Rotation())
add_polygon(sketch27, [(26, -44), (26, -54), (110, -54), (110, -44)])  # lines 0-3
add_polygon(sketch27, [(-125, -44), (-125, -54), (-15, -54), (-15, -44)])  # lines 4-7
sketch27.addConstraint([
    Sketcher.Constraint("Vertical", 0),
    Sketcher.Constraint("Horizontal", 1),
    Sketcher.Constraint("Vertical", 2),
    Sketcher.Constraint("Horizontal", 3),
    Sketcher.Constraint("Vertical", 4),
    Sketcher.Constraint("Horizontal", 5),
    Sketcher.Constraint("Vertical", 6),
    Sketcher.Constraint("Horizontal", 7),
    Sketcher.Constraint("Horizontal", 1, 2, 4, 2),
    Sketcher.Constraint("Horizontal", 3, 2, 6, 2),
    Sketcher.Constraint("DistanceY", 0, 2, 0, 1, 10.0),
    Sketcher.Constraint("DistanceY", 0, 2, -1, 1, 54.0),
    Sketcher.Constraint("DistanceX", 4, 2, -1, 1, 125.0),
    Sketcher.Constraint("DistanceX", 5, 1, 5, 2, 110.05),
    Sketcher.Constraint("DistanceX", 5, 2, 0, 2, 40.5),
    Sketcher.Constraint("DistanceX", 1, 1, 1, 2, 84.423482),
])
pad15 = body.newObject("PartDesign::Pad", "Pad014")
pad15.Profile = sketch27
pad15.Length = 61.47

# Sketch on YZ plane
sketch28 = body.newObject("Sketcher::SketchObject", "Sketch027")
sketch28.AttachmentSupport = (doc.getObject("YZ_Plane"), [""])
sketch28.MapMode = "FlatFace"
sketch28.AttachmentOffset = App.Placement(App.Vector(0, 0, 25.55), App.Rotation())
add_polygon(sketch28, [(-106, -54), (-131, -54), (-131, -44), (-106, -44)])  # lines 0-3
sketch28.addConstraint([
    Sketcher.Constraint("Horizontal", 0),
    Sketcher.Constraint("Vertical", 1),
    Sketcher.Constraint("Horizontal", 2),
    Sketcher.Constraint("Vertical", 3),
    Sketcher.Constraint("DistanceX", 0, 2, 0, 1, 25.0),
    Sketcher.Constraint("DistanceY", 1, 1, 1, 2, 10.0),
    Sketcher.Constraint("DistanceY", 0, 2, -1, 1, 54.0),
    Sketcher.Constraint("DistanceX", 0, 2, -1, 1, 130.79955),
])
pocket13 = body.newObject("PartDesign::Pocket", "Pocket012")
pocket13.Profile = sketch28
pocket13.Length = 10
pocket13.Reversed = True
doc.recompute()

datumplane = body.newObject("PartDesign::Plane", "DatumPlane")
datumplane.AttachmentSupport = (doc.getObject("YZ_Plane"), [""])
datumplane.MapMode = "FlatFace"
datumplane.AttachmentOffset = App.Placement(App.Vector(0, 0, 5.3), App.Rotation())
mirrored = body.newObject("PartDesign::Mirrored", "Mirrored")
mirrored.Originals = [pocket13]
mirrored.MirrorPlane = (datumplane, [""])
body.Tip = mirrored

# Sketch on XZ plane
sketch29 = body.newObject("Sketcher::SketchObject", "Sketch028")
sketch29.AttachmentSupport = (doc.getObject("XZ_Plane"), [""])
sketch29.MapMode = "FlatFace"
add_polygon(sketch29, [(70, -34), (70, -44), (90, -44), (90, -34)])  # lines 0-3
add_polygon(sketch29, [(-100, -34), (-100, -44), (-80, -44), (-80, -34)])  # lines 4-7
sketch29.addConstraint([
    Sketcher.Constraint("Vertical", 0),
    Sketcher.Constraint("Horizontal", 1),
    Sketcher.Constraint("Vertical", 2),
    Sketcher.Constraint("Horizontal", 3),
    Sketcher.Constraint("Vertical", 4),
    Sketcher.Constraint("Horizontal", 5),
    Sketcher.Constraint("Vertical", 6),
    Sketcher.Constraint("Horizontal", 7),
    Sketcher.Constraint("Horizontal", 1, 2, 4, 2),
    Sketcher.Constraint("Horizontal", 3, 2, 6, 2),
    Sketcher.Constraint("Equal", 3, 5),
    Sketcher.Constraint("DistanceX", 1, 1, 1, 2, 20.0),
    Sketcher.Constraint("DistanceY", 0, 2, 0, 1, 10.0),
    Sketcher.Constraint("DistanceY", 0, 2, -1, 1, 44.0),
    Sketcher.Constraint("DistanceX", -1, 1, 0, 2, 69.973482),
    Sketcher.Constraint("DistanceX", 4, 2, -1, 1, 99.973482),
])
pad16 = body.newObject("PartDesign::Pad", "Pad015")
pad16.Profile = sketch29
pad16.Length = 162.1

# Sketch on YZ plane
sketch30 = body.newObject("Sketcher::SketchObject", "Sketch029")
sketch30.AttachmentSupport = (doc.getObject("YZ_Plane"), [""])
sketch30.MapMode = "FlatFace"
sketch30.AttachmentOffset = App.Placement(App.Vector(0, 0, 25.55), App.Rotation())
add_polygon(sketch30, [(-131, -54), (-162, -54), (-162, -44), (-131, -44)])  # lines 0-3
sketch30.addConstraint([
    Sketcher.Constraint("Horizontal", 0),
    Sketcher.Constraint("Vertical", 1),
    Sketcher.Constraint("Horizontal", 2),
    Sketcher.Constraint("Vertical", 3),
    Sketcher.Constraint("DistanceY", 1, 1, 1, 2, 10.0),
    Sketcher.Constraint("DistanceY", 0, 2, -1, 1, 54.0),
    Sketcher.Constraint("DistanceX", 0, 2, -1, 1, 162.1),
    Sketcher.Constraint("DistanceX", 0, 2, 0, 1, 31.30045),
])
pad17 = body.newObject("PartDesign::Pad", "Pad016")
pad17.Profile = sketch30
pad17.Length = 40.5
pad17.Reversed = True

# Sketch on XZ plane
sketch31 = body.newObject("Sketcher::SketchObject", "Sketch030")
sketch31.AttachmentSupport = (doc.getObject("XZ_Plane"), [""])
sketch31.MapMode = "FlatFace"
sketch31.AttachmentOffset = App.Placement(App.Vector(0, 0, -60), App.Rotation())
add_polygon(sketch31, [(70, 41), (70, 21), (90, 21), (90, 41)])  # lines 0-3
add_polygon(sketch31, [(-100, 41), (-100, 21), (-80, 21), (-80, 41)])  # lines 4-7
sketch31.addConstraint([
    Sketcher.Constraint("Vertical", 0),
    Sketcher.Constraint("Horizontal", 1),
    Sketcher.Constraint("Vertical", 2),
    Sketcher.Constraint("Horizontal", 3),
    Sketcher.Constraint("Vertical", 4),
    Sketcher.Constraint("Horizontal", 5),
    Sketcher.Constraint("Vertical", 6),
    Sketcher.Constraint("Horizontal", 7),
    Sketcher.Constraint("Horizontal", 1, 2, 4, 2),
    Sketcher.Constraint("Horizontal", 3, 2, 6, 2),
    Sketcher.Constraint("Equal", 3, 5),
    Sketcher.Constraint("Equal", 7, 0),
    Sketcher.Constraint("DistanceX", 1, 1, 1, 2, 20.0),
    Sketcher.Constraint("DistanceY", -1, 1, 0, 2, 21.0),
    Sketcher.Constraint("DistanceX", -1, 1, 0, 2, 69.973482),
    Sketcher.Constraint("DistanceX", 4, 2, -1, 1, 99.973482),
])
pad18 = body.newObject("PartDesign::Pad", "Pad017")
pad18.Profile = sketch31
pad18.Length = 222.1

# Sketch on XZ plane
sketch32 = body.newObject("Sketcher::SketchObject", "Sketch031")
sketch32.AttachmentSupport = (doc.getObject("XZ_Plane"), [""])
sketch32.MapMode = "FlatFace"
sketch32.AttachmentOffset = App.Placement(App.Vector(0, 0, 162.1), App.Rotation())
sketch32.addGeometry([
    Part.Circle(App.Vector(80, 31, 0), App.Vector(0, 0, 1), 2),
    Part.Circle(App.Vector(80, -44, 0), App.Vector(0, 0, 1), 2),
    Part.Circle(App.Vector(-90, 31, 0), App.Vector(0, 0, 1), 2),
    Part.Circle(App.Vector(-90, -44, 0), App.Vector(0, 0, 1), 2),
], False)
sketch32.addConstraint([
    Sketcher.Constraint("Equal", 0, 1),
    Sketcher.Constraint("Equal", 1, 2),
    Sketcher.Constraint("Equal", 2, 3),
    Sketcher.Constraint("Horizontal", 0, 3, 2, 3),
    Sketcher.Constraint("Horizontal", 1, 3, 3, 3),
    Sketcher.Constraint("Vertical", 0, 3, 1, 3),
    Sketcher.Constraint("Vertical", 2, 3, 3, 3),
    Sketcher.Constraint("Diameter", 0, 4.0),
    Sketcher.Constraint("DistanceY", -1, 1, 0, 3, 31.0),
    Sketcher.Constraint("DistanceY", 1, 3, -1, 1, 44.0),
    Sketcher.Constraint("DistanceX", -1, 1, 0, 3, 79.973482),
    Sketcher.Constraint("DistanceX", 2, 3, -1, 1, 89.973482),
])
pocket14 = body.newObject("PartDesign::Pocket", "Pocket013")
pocket14.Profile = sketch32
pocket14.Length = 30

doc.recompute()
